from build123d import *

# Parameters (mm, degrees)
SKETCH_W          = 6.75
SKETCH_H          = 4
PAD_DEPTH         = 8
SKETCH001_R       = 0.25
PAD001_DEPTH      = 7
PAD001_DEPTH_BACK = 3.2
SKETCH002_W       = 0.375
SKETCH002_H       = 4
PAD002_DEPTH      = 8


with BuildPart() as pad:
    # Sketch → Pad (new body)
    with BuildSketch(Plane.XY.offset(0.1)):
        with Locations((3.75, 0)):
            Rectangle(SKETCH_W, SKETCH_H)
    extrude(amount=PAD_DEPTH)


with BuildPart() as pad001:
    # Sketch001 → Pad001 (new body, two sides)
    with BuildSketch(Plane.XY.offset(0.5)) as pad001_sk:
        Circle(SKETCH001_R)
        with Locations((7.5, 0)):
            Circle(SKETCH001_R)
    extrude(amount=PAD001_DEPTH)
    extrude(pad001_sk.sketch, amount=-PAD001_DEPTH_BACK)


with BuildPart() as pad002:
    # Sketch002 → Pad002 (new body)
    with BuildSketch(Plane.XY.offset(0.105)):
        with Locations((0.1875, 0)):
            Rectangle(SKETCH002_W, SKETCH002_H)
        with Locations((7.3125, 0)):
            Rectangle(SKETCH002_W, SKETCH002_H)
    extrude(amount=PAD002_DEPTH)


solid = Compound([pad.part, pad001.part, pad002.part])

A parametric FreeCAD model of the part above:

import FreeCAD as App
import Part
import Sketcher

V = App.Vector
Q = App.Units.Quantity


def add_polygon(sketch, points):
    """Adds a closed chain of lines whose ends are joined by coincident constraints."""
    first, n = sketch.GeometryCount, len(points)
    for a, b in zip(points, points[1:] + points[:1]):
        sketch.addGeometry(Part.LineSegment(App.Vector(*a, 0), App.Vector(*b, 0)), False)
    for i in range(n):
        sketch.addConstraint(Sketcher.Constraint("Coincident", first + i, 2, first + (i + 1) % n, 1))

doc = App.newDocument("Part")
body = doc.addObject("PartDesign::Body", "Body")

sketch1 = doc.addObject("Sketcher::SketchObject", "Sketch")
body.addObject(sketch1)
sketch1.AttachmentSupport = (doc.XY_Plane, [""])
sketch1.MapMode = "FlatFace"
sketch1.AttachmentOffset = App.Placement(V(0, 0, 0.1), App.Rotation())
add_polygon(sketch1, [(0.4, 2), (0.4, -2), (7.1, -2), (7.1, 2)])
sketch1.addConstraint(Sketcher.Constraint("Vertical", 0))
sketch1.addConstraint(Sketcher.Constraint("Horizontal", 1))
sketch1.addConstraint(Sketcher.Constraint("Vertical", 2))
sketch1.addConstraint(Sketcher.Constraint("Horizontal", 3))
sketch1.addConstraint(Sketcher.Constraint("DistanceY", 0, 2, 0, 1, Q("4 mm")))
sketch1.addConstraint(Sketcher.Constraint("DistanceY", 0, 2, -1, 1, Q("2 mm")))
sketch1.addConstraint(Sketcher.Constraint("DistanceX", 1, 1, 1, 2, Q("6.75 mm")))
sketch1.addConstraint(Sketcher.Constraint("DistanceX", -1, 1, 0, 2, Q("0.375 mm")))
pad1 = doc.addObject("PartDesign::Pad", "Pad")
body.addObject(pad1)
pad1.Profile = sketch1
pad1.Length = 8
body2 = doc.addObject("PartDesign::Body", "Body001")
body2.AllowCompound = True

sketch2 = doc.addObject("Sketcher::SketchObject", "Sketch001")
body2.addObject(sketch2)
sketch2.AttachmentSupport = (doc.getObject("XY_Plane001"), [""])
sketch2.MapMode = "FlatFace"
sketch2.AttachmentOffset = App.Placement(V(0, 0, 0.5), App.Rotation())
sketch2.addGeometry(Part.Circle(V(0, 0, 0), V(0, 0, 1), 0.25), False)
sketch2.addGeometry(Part.Circle(V(7.5, 0, 0), V(0, 0, 1), 0.25), False)
sketch2.addConstraint(Sketcher.Constraint("Coincident", 0, 3, -1, 1))
sketch2.addConstraint(Sketcher.Constraint("Equal", 0, 1))
sketch2.addConstraint(Sketcher.Constraint("PointOnObject", 1, 3, -1))
sketch2.addConstraint(Sketcher.Constraint("Diameter", 0, Q("0.5 mm")))
sketch2.addConstraint(Sketcher.Constraint("DistanceX", -1, 1, 1, 3, Q("7.5 mm")))
pad2 = doc.addObject("PartDesign::Pad", "Pad001")
body2.addObject(pad2)
pad2.Profile = sketch2
pad2.Type = "TwoLengths"
pad2.Length = 7
pad2.Length2 = 3.2
body3 = doc.addObject("PartDesign::Body", "Body002")
body3.AllowCompound = True

sketch3 = doc.addObject("Sketcher::SketchObject", "Sketch002")
body3.addObject(sketch3)
sketch3.AttachmentSupport = (doc.getObject("XY_Plane002"), [""])
sketch3.MapMode = "FlatFace"
sketch3.AttachmentOffset = App.Placement(V(0, 0, 0.105), App.Rotation())
add_polygon(sketch3, [(0, 2), (0, -2), (0.38, -2), (0.38, 2)])
add_polygon(sketch3, [(7.12, 2), (7.12, -2), (7.5, -2), (7.5, 2)])
sketch3.addConstraint(Sketcher.Constraint("Vertical", 0))
sketch3.addConstraint(Sketcher.Constraint("Horizontal", 1))
sketch3.addConstraint(Sketcher.Constraint("Vertical", 2))
sketch3.addConstraint(Sketcher.Constraint("Horizontal", 3))
sketch3.addConstraint(Sketcher.Constraint("Vertical", 4))
sketch3.addConstraint(Sketcher.Constraint("Horizontal", 5))
sketch3.addConstraint(Sketcher.Constraint("Vertical", 6))
sketch3.addConstraint(Sketcher.Constraint("Horizontal", 7))
sketch3.addConstraint(Sketcher.Constraint("Symmetric", 0, 2, 3, 2, -1, 1))
sketch3.addConstraint(Sketcher.Constraint("Horizontal", 1, 2, 4, 2))
sketch3.addConstraint(Sketcher.Constraint("Horizontal", 3, 2, 6, 2))
sketch3.addConstraint(Sketcher.Constraint("Equal", 3, 5))
sketch3.addConstraint(Sketcher.Constraint("DistanceY", 0, 2, 0, 1, Q("4 mm")))
sketch3.addConstraint(Sketcher.Constraint("DistanceX", -1, 1, 5, 2, Q("7.5 mm")))
sketch3.addConstraint(Sketcher.Constraint("DistanceX", 1, 1, 1, 2, Q("0.375 mm")))
pad3 = doc.addObject("PartDesign::Pad", "Pad002")
body3.addObject(pad3)
pad3.Profile = sketch3
pad3.Length = 8

doc.recompute()
